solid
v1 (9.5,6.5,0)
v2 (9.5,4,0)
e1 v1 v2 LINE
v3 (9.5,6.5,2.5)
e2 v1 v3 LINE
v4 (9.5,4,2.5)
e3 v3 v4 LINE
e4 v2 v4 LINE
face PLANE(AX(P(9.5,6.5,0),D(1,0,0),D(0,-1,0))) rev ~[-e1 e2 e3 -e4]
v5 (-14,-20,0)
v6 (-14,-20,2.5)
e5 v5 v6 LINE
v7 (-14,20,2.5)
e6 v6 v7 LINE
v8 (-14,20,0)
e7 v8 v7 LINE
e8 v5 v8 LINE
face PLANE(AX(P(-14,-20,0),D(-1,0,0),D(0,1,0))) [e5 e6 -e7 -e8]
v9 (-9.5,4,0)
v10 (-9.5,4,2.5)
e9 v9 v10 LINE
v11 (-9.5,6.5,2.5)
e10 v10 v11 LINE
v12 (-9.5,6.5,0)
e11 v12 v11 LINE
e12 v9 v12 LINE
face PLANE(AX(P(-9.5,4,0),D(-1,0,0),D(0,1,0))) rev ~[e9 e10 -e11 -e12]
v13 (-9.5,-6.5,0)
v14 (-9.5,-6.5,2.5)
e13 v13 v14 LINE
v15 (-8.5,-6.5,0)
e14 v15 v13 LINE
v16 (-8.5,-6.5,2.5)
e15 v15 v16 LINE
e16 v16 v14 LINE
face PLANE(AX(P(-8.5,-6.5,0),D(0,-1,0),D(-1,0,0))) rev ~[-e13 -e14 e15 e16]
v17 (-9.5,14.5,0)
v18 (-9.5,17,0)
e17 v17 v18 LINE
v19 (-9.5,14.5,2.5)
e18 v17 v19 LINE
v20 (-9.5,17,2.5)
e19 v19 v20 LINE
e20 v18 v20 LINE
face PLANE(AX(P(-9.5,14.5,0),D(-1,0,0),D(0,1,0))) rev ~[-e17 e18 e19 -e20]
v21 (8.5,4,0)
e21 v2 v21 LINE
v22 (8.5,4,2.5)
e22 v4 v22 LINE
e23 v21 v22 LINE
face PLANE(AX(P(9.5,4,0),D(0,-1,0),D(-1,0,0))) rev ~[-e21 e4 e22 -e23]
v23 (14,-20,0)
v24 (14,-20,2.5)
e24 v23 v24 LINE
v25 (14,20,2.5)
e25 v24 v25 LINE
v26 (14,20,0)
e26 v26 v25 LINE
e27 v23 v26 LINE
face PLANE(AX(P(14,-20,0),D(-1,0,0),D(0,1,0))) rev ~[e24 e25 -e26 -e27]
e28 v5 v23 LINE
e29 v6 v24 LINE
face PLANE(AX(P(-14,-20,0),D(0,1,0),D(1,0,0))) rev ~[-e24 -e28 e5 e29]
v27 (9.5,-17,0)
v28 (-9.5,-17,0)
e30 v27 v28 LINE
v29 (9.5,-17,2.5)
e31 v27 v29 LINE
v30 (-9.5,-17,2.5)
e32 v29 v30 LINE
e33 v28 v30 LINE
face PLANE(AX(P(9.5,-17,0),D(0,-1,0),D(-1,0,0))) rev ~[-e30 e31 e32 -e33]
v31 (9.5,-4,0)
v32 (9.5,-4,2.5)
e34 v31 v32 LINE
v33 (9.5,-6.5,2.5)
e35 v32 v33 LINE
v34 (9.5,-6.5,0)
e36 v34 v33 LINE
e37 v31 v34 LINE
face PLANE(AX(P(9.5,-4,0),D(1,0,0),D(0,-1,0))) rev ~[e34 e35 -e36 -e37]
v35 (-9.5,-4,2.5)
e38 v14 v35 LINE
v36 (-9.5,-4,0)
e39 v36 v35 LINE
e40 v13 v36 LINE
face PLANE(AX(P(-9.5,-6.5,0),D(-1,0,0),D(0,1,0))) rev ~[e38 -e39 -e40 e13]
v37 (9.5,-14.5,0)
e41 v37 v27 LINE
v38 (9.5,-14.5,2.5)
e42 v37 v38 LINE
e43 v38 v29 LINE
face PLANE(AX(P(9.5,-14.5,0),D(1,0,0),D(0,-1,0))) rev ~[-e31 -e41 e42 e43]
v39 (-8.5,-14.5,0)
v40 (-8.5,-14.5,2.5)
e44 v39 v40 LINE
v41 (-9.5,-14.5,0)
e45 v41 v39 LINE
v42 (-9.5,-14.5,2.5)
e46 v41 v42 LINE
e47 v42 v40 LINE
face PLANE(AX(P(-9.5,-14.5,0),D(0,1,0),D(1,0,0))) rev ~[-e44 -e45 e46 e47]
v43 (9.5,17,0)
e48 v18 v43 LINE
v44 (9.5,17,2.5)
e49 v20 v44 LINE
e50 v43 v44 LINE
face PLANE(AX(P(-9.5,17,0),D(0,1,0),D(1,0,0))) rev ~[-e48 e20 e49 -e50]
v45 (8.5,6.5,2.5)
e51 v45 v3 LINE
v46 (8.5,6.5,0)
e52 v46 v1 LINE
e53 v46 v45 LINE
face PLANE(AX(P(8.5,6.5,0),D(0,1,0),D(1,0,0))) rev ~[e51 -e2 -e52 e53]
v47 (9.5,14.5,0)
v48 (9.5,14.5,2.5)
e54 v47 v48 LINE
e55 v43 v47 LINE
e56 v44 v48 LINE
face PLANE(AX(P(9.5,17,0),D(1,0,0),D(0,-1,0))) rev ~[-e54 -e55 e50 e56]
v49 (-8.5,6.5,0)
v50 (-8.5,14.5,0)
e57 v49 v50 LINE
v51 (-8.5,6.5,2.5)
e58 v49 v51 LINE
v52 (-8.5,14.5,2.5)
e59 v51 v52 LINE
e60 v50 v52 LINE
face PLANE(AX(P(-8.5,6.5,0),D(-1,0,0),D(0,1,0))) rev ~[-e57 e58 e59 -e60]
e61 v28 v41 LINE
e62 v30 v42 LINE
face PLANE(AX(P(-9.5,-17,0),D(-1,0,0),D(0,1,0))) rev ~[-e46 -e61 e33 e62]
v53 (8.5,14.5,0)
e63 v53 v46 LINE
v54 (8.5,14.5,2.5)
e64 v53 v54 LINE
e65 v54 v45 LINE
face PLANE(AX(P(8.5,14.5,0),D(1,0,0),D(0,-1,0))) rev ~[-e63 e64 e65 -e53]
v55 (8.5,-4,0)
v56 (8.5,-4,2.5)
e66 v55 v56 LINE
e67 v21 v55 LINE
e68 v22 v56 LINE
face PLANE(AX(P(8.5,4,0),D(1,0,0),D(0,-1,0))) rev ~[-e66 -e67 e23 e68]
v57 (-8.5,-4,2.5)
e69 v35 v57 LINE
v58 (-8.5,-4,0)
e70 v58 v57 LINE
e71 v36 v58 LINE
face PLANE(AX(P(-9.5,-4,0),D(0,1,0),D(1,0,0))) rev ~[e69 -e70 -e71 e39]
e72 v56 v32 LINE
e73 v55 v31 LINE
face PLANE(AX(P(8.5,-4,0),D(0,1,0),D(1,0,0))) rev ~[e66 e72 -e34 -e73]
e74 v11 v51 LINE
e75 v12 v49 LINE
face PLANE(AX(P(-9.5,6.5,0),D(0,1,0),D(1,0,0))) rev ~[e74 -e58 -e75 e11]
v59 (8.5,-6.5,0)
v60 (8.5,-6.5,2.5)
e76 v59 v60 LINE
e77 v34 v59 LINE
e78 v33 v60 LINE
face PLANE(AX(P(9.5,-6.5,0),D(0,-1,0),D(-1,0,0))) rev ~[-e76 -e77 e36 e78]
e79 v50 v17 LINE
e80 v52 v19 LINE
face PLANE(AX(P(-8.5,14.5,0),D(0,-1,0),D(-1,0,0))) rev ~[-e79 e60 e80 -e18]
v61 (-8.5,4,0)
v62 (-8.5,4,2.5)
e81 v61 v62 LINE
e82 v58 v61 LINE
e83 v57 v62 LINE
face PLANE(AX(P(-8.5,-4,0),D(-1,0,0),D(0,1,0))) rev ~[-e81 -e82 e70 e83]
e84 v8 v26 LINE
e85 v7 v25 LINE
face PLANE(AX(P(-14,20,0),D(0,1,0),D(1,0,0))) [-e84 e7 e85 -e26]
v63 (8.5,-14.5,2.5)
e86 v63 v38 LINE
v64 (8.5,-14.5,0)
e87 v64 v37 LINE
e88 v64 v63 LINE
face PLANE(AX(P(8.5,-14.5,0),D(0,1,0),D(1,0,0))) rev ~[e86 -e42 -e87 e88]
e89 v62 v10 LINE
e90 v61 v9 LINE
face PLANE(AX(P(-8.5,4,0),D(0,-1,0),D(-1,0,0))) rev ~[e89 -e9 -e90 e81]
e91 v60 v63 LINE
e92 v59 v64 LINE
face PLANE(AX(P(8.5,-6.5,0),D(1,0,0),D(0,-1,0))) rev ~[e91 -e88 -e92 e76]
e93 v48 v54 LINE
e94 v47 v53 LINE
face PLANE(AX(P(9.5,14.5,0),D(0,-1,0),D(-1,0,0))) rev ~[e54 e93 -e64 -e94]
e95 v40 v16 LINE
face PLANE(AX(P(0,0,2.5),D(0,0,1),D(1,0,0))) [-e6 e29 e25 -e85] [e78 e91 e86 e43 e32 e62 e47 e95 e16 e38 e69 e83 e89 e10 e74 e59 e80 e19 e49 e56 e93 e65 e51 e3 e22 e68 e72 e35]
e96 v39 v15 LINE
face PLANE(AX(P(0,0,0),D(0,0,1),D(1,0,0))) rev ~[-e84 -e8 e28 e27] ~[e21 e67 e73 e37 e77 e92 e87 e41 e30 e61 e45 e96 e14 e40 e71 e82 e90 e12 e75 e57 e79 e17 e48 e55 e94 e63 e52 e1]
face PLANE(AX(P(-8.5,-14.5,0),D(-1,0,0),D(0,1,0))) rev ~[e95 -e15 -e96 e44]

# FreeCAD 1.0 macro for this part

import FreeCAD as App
import Part
import Sketcher

doc = App.newDocument("Part")
body = doc.addObject("PartDesign::Body", "Body")

sketch1 = doc.addObject("Sketcher::SketchObject", "Sketch")
body.addObject(sketch1)
sketch1.AttachmentSupport = (doc.XY_Plane, [""])
sketch1.MapMode = "FlatFace"
sketch1.addGeometry([
    Part.LineSegment(App.Vector(-14, 20, 0), App.Vector(-14, -20, 0)),
    Part.LineSegment(App.Vector(-14, -20, 0), App.Vector(14, -20, 0)),
    Part.LineSegment(App.Vector(14, -20, 0), App.Vector(14, 20, 0)),
    Part.LineSegment(App.Vector(14, 20, 0), App.Vector(-14, 20, 0)),
    Part.LineSegment(App.Vector(8.5, -14.5, 0), App.Vector(9.5, -14.5, 0)),
    Part.LineSegment(App.Vector(9.5, -14.5, 0), App.Vector(9.5, -17, 0)),
    Part.LineSegment(App.Vector(9.5, -17, 0), App.Vector(-9.5, -17, 0)),
    Part.LineSegment(App.Vector(-9.5, -17, 0), App.Vector(-9.5, -14.5, 0)),
    Part.LineSegment(App.Vector(-9.5, -14.5, 0), App.Vector(-8.5, -14.5, 0)),
    Part.LineSegment(App.Vector(-8.5, -14.5, 0), App.Vector(-8.5, -6.5, 0)),
    Part.LineSegment(App.Vector(-8.5, -6.5, 0), App.Vector(-9.5, -6.5, 0)),
    Part.LineSegment(App.Vector(-9.5, -6.5, 0), App.Vector(-9.5, -4, 0)),
    Part.LineSegment(App.Vector(-9.5, -4, 0), App.Vector(-8.5, -4, 0)),
    Part.LineSegment(App.Vector(-8.5, -4, 0), App.Vector(-8.5, 4, 0)),
    Part.LineSegment(App.Vector(-8.5, 4, 0), App.Vector(-9.5, 4, 0)),
    Part.LineSegment(App.Vector(-9.5, 4, 0), App.Vector(-9.5, 6.5, 0)),
    Part.LineSegment(App.Vector(-9.5, 6.5, 0), App.Vector(-8.5, 6.5, 0)),
    Part.LineSegment(App.Vector(-8.5, 6.5, 0), App.Vector(-8.5, 14.5, 0)),
    Part.LineSegment(App.Vector(-8.5, 14.5, 0), App.Vector(-9.5, 14.5, 0)),
    Part.LineSegment(App.Vector(-9.5, 14.5, 0), App.Vector(-9.5, 17, 0)),
    Part.LineSegment(App.Vector(-9.5, 17, 0), App.Vector(9.5, 17, 0)),
    Part.LineSegment(App.Vector(9.5, 17, 0), App.Vector(9.5, 14.5, 0)),
    Part.LineSegment(App.Vector(9.5, 14.5, 0), App.Vector(8.5, 14.5, 0)),
    Part.LineSegment(App.Vector(8.5, 14.5, 0), App.Vector(8.5, 6.5, 0)),
    Part.LineSegment(App.Vector(8.5, 6.5, 0), App.Vector(9.5, 6.5, 0)),
    Part.LineSegment(App.Vector(9.5, 6.5, 0), App.Vector(9.5, 4, 0)),
    Part.LineSegment(App.Vector(9.5, 4, 0), App.Vector(8.5, 4, 0)),
    Part.LineSegment(App.Vector(8.5, 4, 0), App.Vector(8.5, -4, 0)),
    Part.LineSegment(App.Vector(8.5, -4, 0), App.Vector(9.5, -4, 0)),
    Part.LineSegment(App.Vector(9.5, -4, 0), App.Vector(9.5, -6.5, 0)),
    Part.LineSegment(App.Vector(9.5, -6.5, 0), App.Vector(8.5, -6.5, 0)),
    Part.LineSegment(App.Vector(8.5, -6.5, 0), App.Vector(8.5, -14.5, 0)),
], False)
sketch1.addConstraint([
    Sketcher.Constraint("Coincident", 0, 2, 1, 1),
    Sketcher.Constraint("Coincident", 1, 2, 2, 1),
    Sketcher.Constraint("Coincident", 2, 2, 3, 1),
    Sketcher.Constraint("Coincident", 3, 2, 0, 1),
    Sketcher.Constraint("Coincident", 4, 2, 5, 1),
    Sketcher.Constraint("Coincident", 5, 2, 6, 1),
    Sketcher.Constraint("Coincident", 6, 2, 7, 1),
    Sketcher.Constraint("Coincident", 7, 2, 8, 1),
    Sketcher.Constraint("Coincident", 8, 2, 9, 1),
    Sketcher.Constraint("Coincident", 9, 2, 10, 1),
    Sketcher.Constraint("Coincident", 10, 2, 11, 1),
    Sketcher.Constraint("Coincident", 11, 2, 12, 1),
    Sketcher.Constraint("Coincident", 12, 2, 13, 1),
    Sketcher.Constraint("Coincident", 13, 2, 14, 1),
    Sketcher.Constraint("Coincident", 14, 2, 15, 1),
    Sketcher.Constraint("Coincident", 15, 2, 16, 1),
    Sketcher.Constraint("Coincident", 16, 2, 17, 1),
    Sketcher.Constraint("Coincident", 17, 2, 18, 1),
    Sketcher.Constraint("Coincident", 18, 2, 19, 1),
    Sketcher.Constraint("Coincident", 19, 2, 20, 1),
    Sketcher.Constraint("Coincident", 20, 2, 21, 1),
    Sketcher.Constraint("Coincident", 21, 2, 22, 1),
    Sketcher.Constraint("Coincident", 22, 2, 23, 1),
    Sketcher.Constraint("Coincident", 23, 2, 24, 1),
    Sketcher.Constraint("Coincident", 24, 2, 25, 1),
    Sketcher.Constraint("Coincident", 25, 2, 26, 1),
    Sketcher.Constraint("Coincident", 26, 2, 27, 1),
    Sketcher.Constraint("Coincident", 27, 2, 28, 1),
    Sketcher.Constraint("Coincident", 28, 2, 29, 1),
    Sketcher.Constraint("Coincident", 29, 2, 30, 1),
    Sketcher.Constraint("Coincident", 30, 2, 31, 1),
    Sketcher.Constraint("Coincident", 31, 2, 4, 1),
    Sketcher.Constraint("Vertical", 0),
    Sketcher.Constraint("Horizontal", 1),
    Sketcher.Constraint("Vertical", 2),
    Sketcher.Constraint("Horizontal", 3),
    Sketcher.Constraint("Horizontal", 4),
    Sketcher.Constraint("Vertical", 5),
    Sketcher.Constraint("Horizontal", 6),
    Sketcher.Constraint("Vertical", 7),
    Sketcher.Constraint("Horizontal", 8),
    Sketcher.Constraint("Vertical", 9),
    Sketcher.Constraint("Horizontal", 10),
    Sketcher.Constraint("Vertical", 11),
    Sketcher.Constraint("Horizontal", 12),
    Sketcher.Constraint("Vertical", 13),
    Sketcher.Constraint("Horizontal", 14),
    Sketcher.Constraint("Vertical", 15),
    Sketcher.Constraint("Horizontal", 16),
    Sketcher.Constraint("Vertical", 17),
    Sketcher.Constraint("Horizontal", 18),
    Sketcher.Constraint("Vertical", 19),
    Sketcher.Constraint("Horizontal", 20),
    Sketcher.Constraint("Vertical", 21),
    Sketcher.Constraint("Horizontal", 22),
    Sketcher.Constraint("Vertical", 23),
    Sketcher.Constraint("Horizontal", 24),
    Sketcher.Constraint("Vertical", 25),
    Sketcher.Constraint("Horizontal", 26),
    Sketcher.Constraint("Vertical", 27),
    Sketcher.Constraint("Horizontal", 28),
    Sketcher.Constraint("Vertical", 29),
    Sketcher.Constraint("Horizontal", 30),
    Sketcher.Constraint("Vertical", 31),
    Sketcher.Constraint("Symmetric", 0, 2, 2, 2, -1, 1),
    Sketcher.Constraint("Symmetric", 4, 2, 18, 2, -1, 1),
    Sketcher.Constraint("Symmetric", 6, 2, 20, 2, -1, 1),
    Sketcher.Constraint("Symmetric", 8, 2, 22, 2, -1, 1),
    Sketcher.Constraint("Symmetric", 10, 2, 24, 2, -1, 1),
    Sketcher.Constraint("Symmetric", 12, 2, 26, 2, -1, 1),
    Sketcher.Constraint("Symmetric", 14, 2, 28, 2, -1, 1),
    Sketcher.Constraint("Symmetric", 16, 2, 30, 2, -1, 1),
    Sketcher.Constraint("Symmetric", 4, 2, 7, 2, -2),
    Sketcher.Constraint("Symmetric", 16, 2, 23, 2, -2),
    Sketcher.Constraint("Symmetric", 14, 2, 25, 2, -2),
    Sketcher.Constraint("Vertical", 7, 2, 10, 2),
    Sketcher.Constraint("Vertical", 9, 2, 12, 2),
    Sketcher.Constraint("Equal", 7, 11),
    Sketcher.Constraint("Equal", 9, 13),
    Sketcher.Constraint("DistanceX", 1, 1, 1, 2, 28.0),
    Sketcher.Constraint("DistanceX", 4, 1, 4, 2, 1.0),
    Sketcher.Constraint("DistanceX", 6, 2, 6, 1, 19.0),
    Sketcher.Constraint("DistanceY", 0, 2, 0, 1, 40.0),
    Sketcher.Constraint("DistanceY", 9, 1, 9, 2, 8.0),
    Sketcher.Constraint("DistanceY", 5, 2, 5, 1, 2.5),
])
pad1 = doc.addObject("PartDesign::Pad", "Pad")
body.addObject(pad1)
pad1.Profile = sketch1
pad1.Length = 2.5

doc.recompute()
